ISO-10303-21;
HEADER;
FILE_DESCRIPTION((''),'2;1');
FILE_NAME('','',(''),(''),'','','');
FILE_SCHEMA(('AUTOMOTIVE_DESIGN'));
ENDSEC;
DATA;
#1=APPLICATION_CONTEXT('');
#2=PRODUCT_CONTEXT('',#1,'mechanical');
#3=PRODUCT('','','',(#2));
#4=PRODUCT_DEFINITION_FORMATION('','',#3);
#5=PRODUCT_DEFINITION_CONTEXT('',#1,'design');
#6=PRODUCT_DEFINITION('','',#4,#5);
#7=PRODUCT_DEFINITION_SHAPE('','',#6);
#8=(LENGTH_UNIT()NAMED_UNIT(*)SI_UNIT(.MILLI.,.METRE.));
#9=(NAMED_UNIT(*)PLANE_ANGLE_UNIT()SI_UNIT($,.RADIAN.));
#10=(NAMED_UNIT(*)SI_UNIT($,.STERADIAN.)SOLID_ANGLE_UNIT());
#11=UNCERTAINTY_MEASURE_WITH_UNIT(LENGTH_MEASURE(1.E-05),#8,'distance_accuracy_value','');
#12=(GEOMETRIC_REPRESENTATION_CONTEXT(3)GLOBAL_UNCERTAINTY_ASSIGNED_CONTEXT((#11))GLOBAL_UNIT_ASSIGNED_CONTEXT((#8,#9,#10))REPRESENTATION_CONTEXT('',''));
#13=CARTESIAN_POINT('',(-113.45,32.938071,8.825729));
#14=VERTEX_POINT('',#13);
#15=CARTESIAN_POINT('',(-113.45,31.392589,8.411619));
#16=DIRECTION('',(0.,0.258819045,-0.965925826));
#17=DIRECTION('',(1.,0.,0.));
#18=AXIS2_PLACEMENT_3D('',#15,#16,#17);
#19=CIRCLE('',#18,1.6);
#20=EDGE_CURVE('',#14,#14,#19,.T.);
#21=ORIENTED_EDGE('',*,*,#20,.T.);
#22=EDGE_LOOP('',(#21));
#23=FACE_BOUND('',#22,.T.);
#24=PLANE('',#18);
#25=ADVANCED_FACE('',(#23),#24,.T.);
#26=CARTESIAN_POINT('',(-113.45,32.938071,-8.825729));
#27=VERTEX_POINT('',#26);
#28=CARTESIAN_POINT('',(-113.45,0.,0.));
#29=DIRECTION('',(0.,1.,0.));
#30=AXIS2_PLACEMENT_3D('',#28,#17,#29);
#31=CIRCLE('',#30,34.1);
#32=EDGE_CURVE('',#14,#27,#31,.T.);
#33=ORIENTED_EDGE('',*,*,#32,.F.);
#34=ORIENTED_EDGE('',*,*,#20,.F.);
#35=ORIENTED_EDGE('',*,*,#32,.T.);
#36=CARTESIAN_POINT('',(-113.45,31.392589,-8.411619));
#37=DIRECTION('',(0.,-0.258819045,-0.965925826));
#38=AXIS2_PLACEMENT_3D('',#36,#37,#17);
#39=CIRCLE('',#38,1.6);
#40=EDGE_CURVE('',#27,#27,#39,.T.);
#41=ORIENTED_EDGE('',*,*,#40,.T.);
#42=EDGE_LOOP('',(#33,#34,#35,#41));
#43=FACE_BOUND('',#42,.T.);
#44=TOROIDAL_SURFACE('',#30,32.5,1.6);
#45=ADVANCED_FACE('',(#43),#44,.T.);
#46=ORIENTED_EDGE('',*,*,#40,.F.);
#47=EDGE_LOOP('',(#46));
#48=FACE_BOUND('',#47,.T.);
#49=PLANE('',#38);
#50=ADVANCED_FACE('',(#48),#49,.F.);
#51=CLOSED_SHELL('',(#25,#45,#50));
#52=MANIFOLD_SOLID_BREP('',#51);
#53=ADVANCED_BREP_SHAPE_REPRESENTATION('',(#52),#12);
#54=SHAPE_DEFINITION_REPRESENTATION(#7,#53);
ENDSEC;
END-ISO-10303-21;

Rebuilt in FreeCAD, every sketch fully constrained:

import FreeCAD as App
import Part
import Sketcher

V = App.Vector
Q = App.Units.Quantity

doc = App.newDocument("Part")
params = doc.addObject("Spreadsheet::Sheet", "Params")
for row, (alias, value) in enumerate([
    ("sketch1_diameter", "3.2 mm"),
    ("revolution_angle", "165 deg"),
    ("sketch2_diameter", "3.2 mm"),
    ("revolution2_angle", "165 deg"),
], start=1):
    params.set(f"A{row}", alias)
    params.set(f"B{row}", "=" + value)
    params.setAlias(f"B{row}", alias)

body = doc.addObject("PartDesign::Body", "Body")

# Sketch on XY plane
sketch1 = body.newObject("Sketcher::SketchObject", "Sketch")
sketch1.AttachmentSupport = (doc.getObject("XY_Plane"), [""])
sketch1.MapMode = "FlatFace"
sketch1.addGeometry(Part.Circle(V(-113.5, -32.5, 0), V(0, 0, 1), 1.6), False)
sketch1.addConstraint(Sketcher.Constraint("Diameter", 0, Q("3.2 mm")))
sketch1.addConstraint(Sketcher.Constraint("DistanceY", 0, 3, -1, 1, Q("32.5 mm")))
sketch1.addConstraint(Sketcher.Constraint("DistanceX", 0, 3, -1, 1, Q("113.45 mm")))
sketch1.setExpression("Constraints[0]", "Params.sketch1_diameter")
revolution = body.newObject("PartDesign::Revolution", "Revolution")
revolution.Profile = sketch1
revolution.ReferenceAxis = (sketch1, ["H_Axis"])
revolution.setExpression("Angle", "Params.revolution_angle")
revolution.Reversed = True

# Sketch on XY plane
sketch2 = body.newObject("Sketcher::SketchObject", "Sketch001")
sketch2.AttachmentSupport = (doc.getObject("XY_Plane"), [""])
sketch2.MapMode = "FlatFace"
sketch2.addGeometry(Part.Circle(V(-113.5, -32.5, 0), V(0, 0, 1), 1.6), False)
sketch2.addConstraint(Sketcher.Constraint("Diameter", 0, Q("3.2 mm")))
sketch2.addConstraint(Sketcher.Constraint("DistanceY", 0, 3, -1, 1, Q("32.5 mm")))
sketch2.addConstraint(Sketcher.Constraint("DistanceX", 0, 3, -1, 1, Q("113.45 mm")))
sketch2.setExpression("Constraints[0]", "Params.sketch2_diameter")
revolution2 = body.newObject("PartDesign::Revolution", "Revolution001")
revolution2.Profile = sketch2
revolution2.ReferenceAxis = (sketch2, ["H_Axis"])
revolution2.setExpression("Angle", "Params.revolution2_angle")

doc.recompute()
